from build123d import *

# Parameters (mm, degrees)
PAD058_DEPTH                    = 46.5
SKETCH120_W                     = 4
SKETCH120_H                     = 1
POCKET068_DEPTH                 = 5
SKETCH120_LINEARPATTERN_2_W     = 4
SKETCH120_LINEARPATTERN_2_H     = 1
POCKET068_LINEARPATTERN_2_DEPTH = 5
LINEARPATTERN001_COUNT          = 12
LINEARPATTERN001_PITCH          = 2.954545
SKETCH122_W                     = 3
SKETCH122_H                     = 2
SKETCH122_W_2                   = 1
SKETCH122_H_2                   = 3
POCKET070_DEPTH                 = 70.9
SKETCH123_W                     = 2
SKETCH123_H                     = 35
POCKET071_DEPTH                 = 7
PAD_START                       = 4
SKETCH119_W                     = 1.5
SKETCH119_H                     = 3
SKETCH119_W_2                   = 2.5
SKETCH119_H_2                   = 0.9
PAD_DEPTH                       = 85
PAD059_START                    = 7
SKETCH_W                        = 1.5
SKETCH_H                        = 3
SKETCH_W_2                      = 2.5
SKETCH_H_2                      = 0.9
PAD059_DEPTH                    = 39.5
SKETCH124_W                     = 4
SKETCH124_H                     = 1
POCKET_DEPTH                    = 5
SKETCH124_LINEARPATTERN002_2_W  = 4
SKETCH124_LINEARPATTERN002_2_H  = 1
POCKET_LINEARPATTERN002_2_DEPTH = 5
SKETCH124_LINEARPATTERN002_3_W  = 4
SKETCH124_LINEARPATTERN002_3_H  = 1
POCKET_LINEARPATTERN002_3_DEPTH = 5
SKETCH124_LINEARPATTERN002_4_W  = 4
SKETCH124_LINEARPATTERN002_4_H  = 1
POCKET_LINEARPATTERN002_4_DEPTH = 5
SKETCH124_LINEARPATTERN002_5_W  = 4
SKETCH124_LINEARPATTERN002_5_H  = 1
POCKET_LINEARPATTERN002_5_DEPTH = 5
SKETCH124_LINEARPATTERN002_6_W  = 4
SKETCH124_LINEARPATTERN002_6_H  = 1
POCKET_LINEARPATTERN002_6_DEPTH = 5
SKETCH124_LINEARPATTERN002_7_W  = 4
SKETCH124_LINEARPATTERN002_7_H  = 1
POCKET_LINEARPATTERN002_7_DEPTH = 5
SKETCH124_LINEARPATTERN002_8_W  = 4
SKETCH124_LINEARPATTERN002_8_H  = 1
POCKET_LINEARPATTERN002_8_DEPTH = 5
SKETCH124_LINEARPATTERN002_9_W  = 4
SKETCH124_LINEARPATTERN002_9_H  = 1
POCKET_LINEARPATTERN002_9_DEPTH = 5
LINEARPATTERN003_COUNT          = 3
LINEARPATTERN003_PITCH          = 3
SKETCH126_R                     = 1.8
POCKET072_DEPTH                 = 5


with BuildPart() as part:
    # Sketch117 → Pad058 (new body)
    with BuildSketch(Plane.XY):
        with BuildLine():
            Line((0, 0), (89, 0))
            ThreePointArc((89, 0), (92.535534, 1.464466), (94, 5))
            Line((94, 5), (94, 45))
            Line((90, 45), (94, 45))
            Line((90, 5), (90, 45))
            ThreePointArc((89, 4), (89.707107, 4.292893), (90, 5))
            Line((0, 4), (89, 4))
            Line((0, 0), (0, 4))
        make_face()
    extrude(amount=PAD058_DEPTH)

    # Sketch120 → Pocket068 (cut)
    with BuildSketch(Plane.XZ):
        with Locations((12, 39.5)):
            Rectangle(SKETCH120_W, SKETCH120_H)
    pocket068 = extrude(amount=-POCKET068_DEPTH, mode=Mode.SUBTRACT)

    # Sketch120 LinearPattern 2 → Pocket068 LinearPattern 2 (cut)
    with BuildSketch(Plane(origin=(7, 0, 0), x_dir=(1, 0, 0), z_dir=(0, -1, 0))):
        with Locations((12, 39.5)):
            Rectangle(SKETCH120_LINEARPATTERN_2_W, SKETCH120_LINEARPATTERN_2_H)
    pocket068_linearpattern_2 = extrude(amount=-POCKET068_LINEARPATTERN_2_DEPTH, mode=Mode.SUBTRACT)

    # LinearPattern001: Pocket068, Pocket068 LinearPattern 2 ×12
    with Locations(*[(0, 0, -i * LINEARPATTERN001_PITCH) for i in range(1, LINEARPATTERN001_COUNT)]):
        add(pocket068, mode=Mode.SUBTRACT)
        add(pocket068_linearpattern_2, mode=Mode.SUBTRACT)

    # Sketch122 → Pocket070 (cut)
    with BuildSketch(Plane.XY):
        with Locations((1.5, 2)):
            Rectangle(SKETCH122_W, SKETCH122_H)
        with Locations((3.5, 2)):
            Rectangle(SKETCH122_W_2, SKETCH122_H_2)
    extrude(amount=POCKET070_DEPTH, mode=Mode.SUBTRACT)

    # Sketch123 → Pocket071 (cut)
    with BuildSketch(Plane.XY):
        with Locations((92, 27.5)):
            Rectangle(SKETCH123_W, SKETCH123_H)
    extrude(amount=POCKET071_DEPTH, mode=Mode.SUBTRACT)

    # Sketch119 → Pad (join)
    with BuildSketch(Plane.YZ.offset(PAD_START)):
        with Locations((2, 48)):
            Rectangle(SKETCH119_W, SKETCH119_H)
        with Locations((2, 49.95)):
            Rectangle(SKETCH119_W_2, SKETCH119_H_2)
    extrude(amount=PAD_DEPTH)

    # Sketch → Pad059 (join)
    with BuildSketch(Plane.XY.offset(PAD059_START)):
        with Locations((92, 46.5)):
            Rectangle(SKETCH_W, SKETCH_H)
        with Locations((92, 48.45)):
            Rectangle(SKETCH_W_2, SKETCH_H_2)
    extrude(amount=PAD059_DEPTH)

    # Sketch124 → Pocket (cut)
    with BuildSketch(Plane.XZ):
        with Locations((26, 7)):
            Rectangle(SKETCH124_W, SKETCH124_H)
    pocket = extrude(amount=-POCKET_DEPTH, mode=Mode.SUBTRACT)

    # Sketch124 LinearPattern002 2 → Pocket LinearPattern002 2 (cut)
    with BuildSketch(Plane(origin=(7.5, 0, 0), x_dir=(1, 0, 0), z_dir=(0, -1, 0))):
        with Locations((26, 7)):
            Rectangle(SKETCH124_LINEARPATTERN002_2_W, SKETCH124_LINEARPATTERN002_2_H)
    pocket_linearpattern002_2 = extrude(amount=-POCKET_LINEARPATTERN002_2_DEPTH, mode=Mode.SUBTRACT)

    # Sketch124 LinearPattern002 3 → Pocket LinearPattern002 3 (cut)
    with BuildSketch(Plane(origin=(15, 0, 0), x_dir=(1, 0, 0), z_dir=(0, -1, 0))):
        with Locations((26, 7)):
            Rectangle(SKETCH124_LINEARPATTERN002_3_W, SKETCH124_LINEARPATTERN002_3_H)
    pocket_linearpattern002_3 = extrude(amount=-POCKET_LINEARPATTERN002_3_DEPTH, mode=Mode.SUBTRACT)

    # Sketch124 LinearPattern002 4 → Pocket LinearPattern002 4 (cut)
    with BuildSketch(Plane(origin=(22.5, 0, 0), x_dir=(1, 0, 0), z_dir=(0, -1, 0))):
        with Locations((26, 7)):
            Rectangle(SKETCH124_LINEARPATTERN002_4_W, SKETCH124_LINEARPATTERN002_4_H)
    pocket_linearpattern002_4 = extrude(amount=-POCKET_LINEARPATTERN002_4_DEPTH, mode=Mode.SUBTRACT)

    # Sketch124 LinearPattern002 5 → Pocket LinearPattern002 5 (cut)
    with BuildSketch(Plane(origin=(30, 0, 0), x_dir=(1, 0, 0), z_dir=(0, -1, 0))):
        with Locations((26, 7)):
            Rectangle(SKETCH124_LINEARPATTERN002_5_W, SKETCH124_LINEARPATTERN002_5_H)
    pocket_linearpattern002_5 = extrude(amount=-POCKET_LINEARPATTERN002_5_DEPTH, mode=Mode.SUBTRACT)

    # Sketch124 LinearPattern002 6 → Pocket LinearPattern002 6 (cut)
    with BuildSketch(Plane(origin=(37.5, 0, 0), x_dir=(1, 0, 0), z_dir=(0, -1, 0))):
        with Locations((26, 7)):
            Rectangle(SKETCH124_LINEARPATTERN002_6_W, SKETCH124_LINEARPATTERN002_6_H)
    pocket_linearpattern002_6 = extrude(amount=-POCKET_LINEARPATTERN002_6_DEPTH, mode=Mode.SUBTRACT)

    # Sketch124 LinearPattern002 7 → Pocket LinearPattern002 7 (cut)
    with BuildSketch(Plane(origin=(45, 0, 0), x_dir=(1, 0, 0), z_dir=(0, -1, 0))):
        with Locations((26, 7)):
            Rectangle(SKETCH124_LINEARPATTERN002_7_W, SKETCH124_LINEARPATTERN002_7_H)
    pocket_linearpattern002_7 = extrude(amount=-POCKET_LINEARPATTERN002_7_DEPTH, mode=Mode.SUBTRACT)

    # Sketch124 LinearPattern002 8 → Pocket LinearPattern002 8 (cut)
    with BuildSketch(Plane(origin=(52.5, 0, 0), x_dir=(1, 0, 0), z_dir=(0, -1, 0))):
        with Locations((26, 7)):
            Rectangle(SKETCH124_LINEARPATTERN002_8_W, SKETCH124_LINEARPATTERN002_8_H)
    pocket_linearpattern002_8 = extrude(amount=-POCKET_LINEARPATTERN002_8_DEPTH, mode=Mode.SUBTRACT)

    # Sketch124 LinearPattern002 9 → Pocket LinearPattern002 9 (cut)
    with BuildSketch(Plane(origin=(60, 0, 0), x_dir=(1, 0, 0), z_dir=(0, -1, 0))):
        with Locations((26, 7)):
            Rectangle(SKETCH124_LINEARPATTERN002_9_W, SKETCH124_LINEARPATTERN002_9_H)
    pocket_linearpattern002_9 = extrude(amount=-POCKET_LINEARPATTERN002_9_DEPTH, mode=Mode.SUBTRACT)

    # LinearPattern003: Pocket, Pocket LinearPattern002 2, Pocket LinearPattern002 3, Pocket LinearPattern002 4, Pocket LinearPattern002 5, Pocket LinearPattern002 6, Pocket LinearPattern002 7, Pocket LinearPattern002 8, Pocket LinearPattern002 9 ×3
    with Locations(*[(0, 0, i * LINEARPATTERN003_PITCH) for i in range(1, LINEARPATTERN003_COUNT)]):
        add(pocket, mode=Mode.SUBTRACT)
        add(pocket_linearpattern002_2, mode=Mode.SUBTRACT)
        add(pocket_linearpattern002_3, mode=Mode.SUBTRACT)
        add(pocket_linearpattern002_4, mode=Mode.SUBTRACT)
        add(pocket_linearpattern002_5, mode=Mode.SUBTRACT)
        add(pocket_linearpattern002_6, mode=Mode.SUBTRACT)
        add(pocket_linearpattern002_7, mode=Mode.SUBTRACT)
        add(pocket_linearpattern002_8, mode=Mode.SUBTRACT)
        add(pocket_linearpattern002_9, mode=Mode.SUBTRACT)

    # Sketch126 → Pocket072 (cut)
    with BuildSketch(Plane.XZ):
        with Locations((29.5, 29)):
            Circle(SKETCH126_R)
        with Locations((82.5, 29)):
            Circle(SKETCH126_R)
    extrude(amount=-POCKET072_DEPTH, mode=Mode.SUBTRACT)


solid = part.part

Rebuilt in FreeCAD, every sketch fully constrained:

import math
import FreeCAD as App
import Part
import Sketcher
from FreeCAD import Vector
Q = App.Units.Quantity


def add_polygon(sketch, points):
    """Adds a closed chain of lines whose ends are joined by coincident constraints."""
    first, n = sketch.GeometryCount, len(points)
    for a, b in zip(points, points[1:] + points[:1]):
        sketch.addGeometry(Part.LineSegment(App.Vector(*a, 0), App.Vector(*b, 0)), False)
    for i in range(n):
        sketch.addConstraint(Sketcher.Constraint("Coincident", first + i, 2, first + (i + 1) % n, 1))

doc = App.newDocument("Part")
body = doc.addObject("PartDesign::Body", "Body")

# Sketch on XY plane
sketch1 = doc.addObject("Sketcher::SketchObject", "Sketch")
body.addObject(sketch1)
sketch1.AttachmentSupport = (doc.XY_Plane, [""])
sketch1.MapMode = "FlatFace"
sketch1.addGeometry(Part.LineSegment(Vector(0, 0, 0), Vector(89, 0, 0)), False)
sketch1.addGeometry(Part.ArcOfCircle(Part.Circle(Vector(89, 5, 0), Vector(0, 0, 1), 5), math.radians(-90), math.radians(0)), False)
sketch1.addGeometry(Part.LineSegment(Vector(94, 5, 0), Vector(94, 45, 0)), False)
sketch1.addGeometry(Part.LineSegment(Vector(94, 45, 0), Vector(90, 45, 0)), False)
sketch1.addGeometry(Part.LineSegment(Vector(90, 45, 0), Vector(90, 5, 0)), False)
sketch1.addGeometry(Part.ArcOfCircle(Part.Circle(Vector(89, 5, 0), Vector(0, 0, 1), 1), math.radians(-90), math.radians(0)), False)
sketch1.addGeometry(Part.LineSegment(Vector(89, 4, 0), Vector(0, 4, 0)), False)
sketch1.addGeometry(Part.LineSegment(Vector(0, 4, 0), Vector(0, 0, 0)), False)
sketch1.addConstraint(Sketcher.Constraint("Tangent", 0, 2, 1, 1))
sketch1.addConstraint(Sketcher.Constraint("Tangent", 1, 2, 2, 1))
sketch1.addConstraint(Sketcher.Constraint("Coincident", 2, 2, 3, 1))
sketch1.addConstraint(Sketcher.Constraint("Coincident", 3, 2, 4, 1))
sketch1.addConstraint(Sketcher.Constraint("Tangent", 4, 2, 5, 2))
sketch1.addConstraint(Sketcher.Constraint("Tangent", 5, 1, 6, 1))
sketch1.addConstraint(Sketcher.Constraint("Coincident", 6, 2, 7, 1))
sketch1.addConstraint(Sketcher.Constraint("Coincident", 7, 2, 0, 1))
sketch1.addConstraint(Sketcher.Constraint("Horizontal", 0))
sketch1.addConstraint(Sketcher.Constraint("Vertical", 2))
sketch1.addConstraint(Sketcher.Constraint("Horizontal", 3))
sketch1.addConstraint(Sketcher.Constraint("Vertical", 4))
sketch1.addConstraint(Sketcher.Constraint("Horizontal", 6))
sketch1.addConstraint(Sketcher.Constraint("Vertical", 7))
sketch1.addConstraint(Sketcher.Constraint("Coincident", 7, 2, -1, 1))
sketch1.addConstraint(Sketcher.Constraint("Coincident", 5, 3, 1, 3))
sketch1.addConstraint(Sketcher.Constraint("Radius", 1, Q("5 mm")))
sketch1.addConstraint(Sketcher.Constraint("Radius", 5, Q("0.999999 mm")))
sketch1.addConstraint(Sketcher.Constraint("DistanceX", 0, 1, 0, 2, Q("89 mm")))
sketch1.addConstraint(Sketcher.Constraint("DistanceY", 2, 1, 2, 2, Q("40 mm")))
pad1 = doc.addObject("PartDesign::Pad", "Pad")
body.addObject(pad1)
pad1.Profile = sketch1
pad1.Length = 46.5

# Sketch on XZ plane
sketch2 = doc.addObject("Sketcher::SketchObject", "Sketch001")
body.addObject(sketch2)
sketch2.AttachmentSupport = (doc.XZ_Plane, [""])
sketch2.MapMode = "FlatFace"
add_polygon(sketch2, [(10, 40), (10, 39), (14, 39), (14, 40)])  # lines 0-3
sketch2.addConstraint(Sketcher.Constraint("Vertical", 0))
sketch2.addConstraint(Sketcher.Constraint("Horizontal", 1))
sketch2.addConstraint(Sketcher.Constraint("Vertical", 2))
sketch2.addConstraint(Sketcher.Constraint("Horizontal", 3))
sketch2.addConstraint(Sketcher.Constraint("DistanceX", 1, 1, 1, 2, Q("4 mm")))
sketch2.addConstraint(Sketcher.Constraint("DistanceY", 0, 2, 0, 1, Q("1 mm")))
sketch2.addConstraint(Sketcher.Constraint("DistanceX", -1, 1, 0, 2, Q("10 mm")))
sketch2.addConstraint(Sketcher.Constraint("DistanceY", -1, 1, 0, 2, Q("39 mm")))
pocket1 = doc.addObject("PartDesign::Pocket", "Pocket")
body.addObject(pocket1)
pocket1.Profile = sketch2
pocket1.Length = 5

# Sketch on XZ plane
sketch3 = doc.addObject("Sketcher::SketchObject", "Sketch002")
body.addObject(sketch3)
sketch3.AttachmentSupport = (doc.XZ_Plane, [""])
sketch3.MapMode = "FlatFace"
add_polygon(sketch3, [(17, 40), (17, 39), (21, 39), (21, 40)])  # lines 0-3
sketch3.addConstraint(Sketcher.Constraint("Vertical", 0))
sketch3.addConstraint(Sketcher.Constraint("Horizontal", 1))
sketch3.addConstraint(Sketcher.Constraint("Vertical", 2))
sketch3.addConstraint(Sketcher.Constraint("Horizontal", 3))
sketch3.addConstraint(Sketcher.Constraint("DistanceX", 1, 1, 1, 2, Q("4 mm")))
sketch3.addConstraint(Sketcher.Constraint("DistanceY", 0, 2, 0, 1, Q("1 mm")))
sketch3.addConstraint(Sketcher.Constraint("DistanceX", -1, 1, 0, 2, Q("17 mm")))
sketch3.addConstraint(Sketcher.Constraint("DistanceY", -1, 1, 0, 2, Q("39 mm")))
pocket2 = doc.addObject("PartDesign::Pocket", "Pocket001")
body.addObject(pocket2)
pocket2.Profile = sketch3
pocket2.Length = 5
doc.recompute()

linearpattern = doc.addObject("PartDesign::LinearPattern", "LinearPattern")
body.addObject(linearpattern)
linearpattern.Originals = [pocket1, pocket2]
linearpattern.Direction = (doc.Z_Axis, [""])
linearpattern.Mode = "offset"
linearpattern.Offset = 2.954545
linearpattern.Occurrences = 12
linearpattern.Reversed = True
body.Tip = linearpattern

# Sketch on XY plane
sketch4 = doc.addObject("Sketcher::SketchObject", "Sketch003")
body.addObject(sketch4)
sketch4.AttachmentSupport = (doc.XY_Plane, [""])
sketch4.MapMode = "FlatFace"
add_polygon(sketch4, [(0, 3), (0, 1), (3, 1), (3, 0.5), (4, 0.5), (4, 3.5), (3, 3.5), (3, 3)])  # lines 0-7
sketch4.addConstraint(Sketcher.Constraint("Vertical", 0))
sketch4.addConstraint(Sketcher.Constraint("Horizontal", 1))
sketch4.addConstraint(Sketcher.Constraint("Vertical", 2))
sketch4.addConstraint(Sketcher.Constraint("Horizontal", 3))
sketch4.addConstraint(Sketcher.Constraint("Vertical", 4))
sketch4.addConstraint(Sketcher.Constraint("Horizontal", 5))
sketch4.addConstraint(Sketcher.Constraint("Vertical", 6))
sketch4.addConstraint(Sketcher.Constraint("Horizontal", 7))
sketch4.addConstraint(Sketcher.Constraint("PointOnObject", 0, 2, -2))
sketch4.addConstraint(Sketcher.Constraint("Vertical", 2, 2, 5, 2))
sketch4.addConstraint(Sketcher.Constraint("Equal", 7, 4))
sketch4.addConstraint(Sketcher.Constraint("Equal", 2, 6))
sketch4.addConstraint(Sketcher.Constraint("DistanceX", 1, 1, 1, 2, Q("3 mm")))
sketch4.addConstraint(Sketcher.Constraint("DistanceX", 3, 1, 3, 2, Q("1 mm")))
sketch4.addConstraint(Sketcher.Constraint("DistanceY", 0, 2, 0, 1, Q("2 mm")))
sketch4.addConstraint(Sketcher.Constraint("DistanceY", -1, 1, 0, 2, Q("1 mm")))
pocket3 = doc.addObject("PartDesign::Pocket", "Pocket002")
body.addObject(pocket3)
pocket3.Profile = sketch4
pocket3.Length = 70.9
pocket3.Reversed = True

# Sketch on XY plane
sketch5 = doc.addObject("Sketcher::SketchObject", "Sketch004")
body.addObject(sketch5)
sketch5.AttachmentSupport = (doc.XY_Plane, [""])
sketch5.MapMode = "FlatFace"
add_polygon(sketch5, [(91, 45), (91, 10), (93, 10), (93, 45)])  # lines 0-3
sketch5.addConstraint(Sketcher.Constraint("Vertical", 0))
sketch5.addConstraint(Sketcher.Constraint("Horizontal", 1))
sketch5.addConstraint(Sketcher.Constraint("Vertical", 2))
sketch5.addConstraint(Sketcher.Constraint("Horizontal", 3))
sketch5.addConstraint(Sketcher.Constraint("DistanceX", 1, 1, 1, 2, Q("2 mm")))
sketch5.addConstraint(Sketcher.Constraint("DistanceY", 0, 2, 0, 1, Q("35 mm")))
sketch5.addConstraint(Sketcher.Constraint("DistanceX", -1, 1, 0, 2, Q("91 mm")))
sketch5.addConstraint(Sketcher.Constraint("DistanceY", -1, 1, 0, 2, Q("10 mm")))
pocket4 = doc.addObject("PartDesign::Pocket", "Pocket003")
body.addObject(pocket4)
pocket4.Profile = sketch5
pocket4.Length = 7
pocket4.Reversed = True

# Sketch on YZ plane
sketch6 = doc.addObject("Sketcher::SketchObject", "Sketch005")
body.addObject(sketch6)
sketch6.AttachmentSupport = (doc.YZ_Plane, [""])
sketch6.MapMode = "FlatFace"
sketch6.AttachmentOffset = App.Placement(Vector(0, 0, 4), App.Rotation())
add_polygon(sketch6, [(1.2, 49.5), (1.2, 46.5), (2.8, 46.5), (2.8, 49.5), (3.2, 49.5), (3.2, 50.4), (0.8, 50.4), (0.8, 49.5)])  # lines 0-7
sketch6.addConstraint(Sketcher.Constraint("Vertical", 0))
sketch6.addConstraint(Sketcher.Constraint("Horizontal", 1))
sketch6.addConstraint(Sketcher.Constraint("Vertical", 2))
sketch6.addConstraint(Sketcher.Constraint("Horizontal", 3))
sketch6.addConstraint(Sketcher.Constraint("Vertical", 4))
sketch6.addConstraint(Sketcher.Constraint("Horizontal", 5))
sketch6.addConstraint(Sketcher.Constraint("Vertical", 6))
sketch6.addConstraint(Sketcher.Constraint("Horizontal", 7))
sketch6.addConstraint(Sketcher.Constraint("Horizontal", 3, 2, 6, 2))
sketch6.addConstraint(Sketcher.Constraint("Equal", 3, 7))
sketch6.addConstraint(Sketcher.Constraint("DistanceY", 0, 2, 0, 1, Q("3 mm")))
sketch6.addConstraint(Sketcher.Constraint("DistanceX", 1, 1, 1, 2, Q("1.5 mm")))
sketch6.addConstraint(Sketcher.Constraint("DistanceX", 3, 1, 3, 2, Q("0.5 mm")))
sketch6.addConstraint(Sketcher.Constraint("DistanceY", 4, 1, 4, 2, Q("0.9 mm")))
sketch6.addConstraint(Sketcher.Constraint("DistanceY", -1, 1, 0, 2, Q("46.5 mm")))
sketch6.addConstraint(Sketcher.Constraint("DistanceX", -1, 1, 0, 2, Q("1.25 mm")))
pad2 = doc.addObject("PartDesign::Pad", "Pad001")
body.addObject(pad2)
pad2.Profile = sketch6
pad2.Length = 85

# Sketch on XY plane
sketch7 = doc.addObject("Sketcher::SketchObject", "Sketch006")
body.addObject(sketch7)
sketch7.AttachmentSupport = (doc.XY_Plane, [""])
sketch7.MapMode = "FlatFace"
sketch7.AttachmentOffset = App.Placement(Vector(0, 0, 7), App.Rotation())
add_polygon(sketch7, [(91.2, 48), (91.2, 45), (92.8, 45), (92.8, 48), (93.2, 48), (93.2, 48.9), (90.8, 48.9), (90.8, 48)])  # lines 0-7
sketch7.addConstraint(Sketcher.Constraint("Vertical", 0))
sketch7.addConstraint(Sketcher.Constraint("Horizontal", 1))
sketch7.addConstraint(Sketcher.Constraint("Vertical", 2))
sketch7.addConstraint(Sketcher.Constraint("Horizontal", 3))
sketch7.addConstraint(Sketcher.Constraint("Vertical", 4))
sketch7.addConstraint(Sketcher.Constraint("Horizontal", 5))
sketch7.addConstraint(Sketcher.Constraint("Vertical", 6))
sketch7.addConstraint(Sketcher.Constraint("Horizontal", 7))
sketch7.addConstraint(Sketcher.Constraint("Horizontal", 3, 2, 6, 2))
sketch7.addConstraint(Sketcher.Constraint("Equal", 3, 7))
sketch7.addConstraint(Sketcher.Constraint("DistanceY", 0, 2, 0, 1, Q("3 mm")))
sketch7.addConstraint(Sketcher.Constraint("DistanceX", 1, 1, 1, 2, Q("1.5 mm")))
sketch7.addConstraint(Sketcher.Constraint("DistanceX", 3, 1, 3, 2, Q("0.5 mm")))
sketch7.addConstraint(Sketcher.Constraint("DistanceY", 4, 1, 4, 2, Q("0.9 mm")))
sketch7.addConstraint(Sketcher.Constraint("DistanceY", -1, 1, 0, 2, Q("45 mm")))
sketch7.addConstraint(Sketcher.Constraint("DistanceX", -1, 1, 0, 2, Q("91.25 mm")))
pad3 = doc.addObject("PartDesign::Pad", "Pad002")
body.addObject(pad3)
pad3.Profile = sketch7
pad3.Length = 39.5

# Sketch on XZ plane
sketch8 = doc.addObject("Sketcher::SketchObject", "Sketch007")
body.addObject(sketch8)
sketch8.AttachmentSupport = (doc.XZ_Plane, [""])
sketch8.MapMode = "FlatFace"
add_polygon(sketch8, [(24, 7.5), (24, 6.5), (28, 6.5), (28, 7.5)])  # lines 0-3
sketch8.addConstraint(Sketcher.Constraint("Vertical", 0))
sketch8.addConstraint(Sketcher.Constraint("Horizontal", 1))
sketch8.addConstraint(Sketcher.Constraint("Vertical", 2))
sketch8.addConstraint(Sketcher.Constraint("Horizontal", 3))
sketch8.addConstraint(Sketcher.Constraint("DistanceX", 1, 1, 1, 2, Q("4 mm")))
sketch8.addConstraint(Sketcher.Constraint("DistanceY", 0, 2, 0, 1, Q("1 mm")))
sketch8.addConstraint(Sketcher.Constraint("DistanceX", -1, 1, 0, 2, Q("24 mm")))
sketch8.addConstraint(Sketcher.Constraint("DistanceY", -1, 1, 0, 2, Q("6.5 mm")))
pocket5 = doc.addObject("PartDesign::Pocket", "Pocket004")
body.addObject(pocket5)
pocket5.Profile = sketch8
pocket5.Length = 5

# Sketch on XZ plane
sketch9 = doc.addObject("Sketcher::SketchObject", "Sketch008")
body.addObject(sketch9)
sketch9.AttachmentSupport = (doc.XZ_Plane, [""])
sketch9.MapMode = "FlatFace"
add_polygon(sketch9, [(31.5, 7.5), (31.5, 6.5), (35.5, 6.5), (35.5, 7.5)])  # lines 0-3
sketch9.addConstraint(Sketcher.Constraint("Vertical", 0))
sketch9.addConstraint(Sketcher.Constraint("Horizontal", 1))
sketch9.addConstraint(Sketcher.Constraint("Vertical", 2))
sketch9.addConstraint(Sketcher.Constraint("Horizontal", 3))
sketch9.addConstraint(Sketcher.Constraint("DistanceX", 1, 1, 1, 2, Q("4 mm")))
sketch9.addConstraint(Sketcher.Constraint("DistanceY", 0, 2, 0, 1, Q("1 mm")))
sketch9.addConstraint(Sketcher.Constraint("DistanceX", -1, 1, 0, 2, Q("31.5 mm")))
sketch9.addConstraint(Sketcher.Constraint("DistanceY", -1, 1, 0, 2, Q("6.5 mm")))
pocket6 = doc.addObject("PartDesign::Pocket", "Pocket005")
body.addObject(pocket6)
pocket6.Profile = sketch9
pocket6.Length = 5

# Sketch on XZ plane
sketch10 = doc.addObject("Sketcher::SketchObject", "Sketch009")
body.addObject(sketch10)
sketch10.AttachmentSupport = (doc.XZ_Plane, [""])
sketch10.MapMode = "FlatFace"
add_polygon(sketch10, [(39, 7.5), (39, 6.5), (43, 6.5), (43, 7.5)])  # lines 0-3
sketch10.addConstraint(Sketcher.Constraint("Vertical", 0))
sketch10.addConstraint(Sketcher.Constraint("Horizontal", 1))
sketch10.addConstraint(Sketcher.Constraint("Vertical", 2))
sketch10.addConstraint(Sketcher.Constraint("Horizontal", 3))
sketch10.addConstraint(Sketcher.Constraint("DistanceX", 1, 1, 1, 2, Q("4 mm")))
sketch10.addConstraint(Sketcher.Constraint("DistanceY", 0, 2, 0, 1, Q("1 mm")))
sketch10.addConstraint(Sketcher.Constraint("DistanceX", -1, 1, 0, 2, Q("39 mm")))
sketch10.addConstraint(Sketcher.Constraint("DistanceY", -1, 1, 0, 2, Q("6.5 mm")))
pocket7 = doc.addObject("PartDesign::Pocket", "Pocket006")
body.addObject(pocket7)
pocket7.Profile = sketch10
pocket7.Length = 5

# Sketch on XZ plane
sketch11 = doc.addObject("Sketcher::SketchObject", "Sketch010")
body.addObject(sketch11)
sketch11.AttachmentSupport = (doc.XZ_Plane, [""])
sketch11.MapMode = "FlatFace"
add_polygon(sketch11, [(46.5, 7.5), (46.5, 6.5), (50.5, 6.5), (50.5, 7.5)])  # lines 0-3
sketch11.addConstraint(Sketcher.Constraint("Vertical", 0))
sketch11.addConstraint(Sketcher.Constraint("Horizontal", 1))
sketch11.addConstraint(Sketcher.Constraint("Vertical", 2))
sketch11.addConstraint(Sketcher.Constraint("Horizontal", 3))
sketch11.addConstraint(Sketcher.Constraint("DistanceX", 1, 1, 1, 2, Q("4 mm")))
sketch11.addConstraint(Sketcher.Constraint("DistanceY", 0, 2, 0, 1, Q("1 mm")))
sketch11.addConstraint(Sketcher.Constraint("DistanceX", -1, 1, 0, 2, Q("46.5 mm")))
sketch11.addConstraint(Sketcher.Constraint("DistanceY", -1, 1, 0, 2, Q("6.5 mm")))
pocket8 = doc.addObject("PartDesign::Pocket", "Pocket007")
body.addObject(pocket8)
pocket8.Profile = sketch11
pocket8.Length = 5

# Sketch on XZ plane
sketch12 = doc.addObject("Sketcher::SketchObject", "Sketch011")
body.addObject(sketch12)
sketch12.AttachmentSupport = (doc.XZ_Plane, [""])
sketch12.MapMode = "FlatFace"
add_polygon(sketch12, [(54, 7.5), (54, 6.5), (58, 6.5), (58, 7.5)])  # lines 0-3
sketch12.addConstraint(Sketcher.Constraint("Vertical", 0))
sketch12.addConstraint(Sketcher.Constraint("Horizontal", 1))
sketch12.addConstraint(Sketcher.Constraint("Vertical", 2))
sketch12.addConstraint(Sketcher.Constraint("Horizontal", 3))
sketch12.addConstraint(Sketcher.Constraint("DistanceX", 1, 1, 1, 2, Q("4 mm")))
sketch12.addConstraint(Sketcher.Constraint("DistanceY", 0, 2, 0, 1, Q("1 mm")))
sketch12.addConstraint(Sketcher.Constraint("DistanceX", -1, 1, 0, 2, Q("54 mm")))
sketch12.addConstraint(Sketcher.Constraint("DistanceY", -1, 1, 0, 2, Q("6.5 mm")))
pocket9 = doc.addObject("PartDesign::Pocket", "Pocket008")
body.addObject(pocket9)
pocket9.Profile = sketch12
pocket9.Length = 5

# Sketch on XZ plane
sketch13 = doc.addObject("Sketcher::SketchObject", "Sketch012")
body.addObject(sketch13)
sketch13.AttachmentSupport = (doc.XZ_Plane, [""])
sketch13.MapMode = "FlatFace"
add_polygon(sketch13, [(61.5, 7.5), (61.5, 6.5), (65.5, 6.5), (65.5, 7.5)])  # lines 0-3
sketch13.addConstraint(Sketcher.Constraint("Vertical", 0))
sketch13.addConstraint(Sketcher.Constraint("Horizontal", 1))
sketch13.addConstraint(Sketcher.Constraint("Vertical", 2))
sketch13.addConstraint(Sketcher.Constraint("Horizontal", 3))
sketch13.addConstraint(Sketcher.Constraint("DistanceX", 1, 1, 1, 2, Q("4 mm")))
sketch13.addConstraint(Sketcher.Constraint("DistanceY", 0, 2, 0, 1, Q("1 mm")))
sketch13.addConstraint(Sketcher.Constraint("DistanceX", -1, 1, 0, 2, Q("61.5 mm")))
sketch13.addConstraint(Sketcher.Constraint("DistanceY", -1, 1, 0, 2, Q("6.5 mm")))
pocket10 = doc.addObject("PartDesign::Pocket", "Pocket009")
body.addObject(pocket10)
pocket10.Profile = sketch13
pocket10.Length = 5

# Sketch on XZ plane
sketch14 = doc.addObject("Sketcher::SketchObject", "Sketch013")
body.addObject(sketch14)
sketch14.AttachmentSupport = (doc.XZ_Plane, [""])
sketch14.MapMode = "FlatFace"
add_polygon(sketch14, [(69, 7.5), (69, 6.5), (73, 6.5), (73, 7.5)])  # lines 0-3
sketch14.addConstraint(Sketcher.Constraint("Vertical", 0))
sketch14.addConstraint(Sketcher.Constraint("Horizontal", 1))
sketch14.addConstraint(Sketcher.Constraint("Vertical", 2))
sketch14.addConstraint(Sketcher.Constraint("Horizontal", 3))
sketch14.addConstraint(Sketcher.Constraint("DistanceX", 1, 1, 1, 2, Q("4 mm")))
sketch14.addConstraint(Sketcher.Constraint("DistanceY", 0, 2, 0, 1, Q("1 mm")))
sketch14.addConstraint(Sketcher.Constraint("DistanceX", -1, 1, 0, 2, Q("69 mm")))
sketch14.addConstraint(Sketcher.Constraint("DistanceY", -1, 1, 0, 2, Q("6.5 mm")))
pocket11 = doc.addObject("PartDesign::Pocket", "Pocket010")
body.addObject(pocket11)
pocket11.Profile = sketch14
pocket11.Length = 5

# Sketch on XZ plane
sketch15 = doc.addObject("Sketcher::SketchObject", "Sketch014")
body.addObject(sketch15)
sketch15.AttachmentSupport = (doc.XZ_Plane, [""])
sketch15.MapMode = "FlatFace"
add_polygon(sketch15, [(76.5, 7.5), (76.5, 6.5), (80.5, 6.5), (80.5, 7.5)])  # lines 0-3
sketch15.addConstraint(Sketcher.Constraint("Vertical", 0))
sketch15.addConstraint(Sketcher.Constraint("Horizontal", 1))
sketch15.addConstraint(Sketcher.Constraint("Vertical", 2))
sketch15.addConstraint(Sketcher.Constraint("Horizontal", 3))
sketch15.addConstraint(Sketcher.Constraint("DistanceX", 1, 1, 1, 2, Q("4 mm")))
sketch15.addConstraint(Sketcher.Constraint("DistanceY", 0, 2, 0, 1, Q("1 mm")))
sketch15.addConstraint(Sketcher.Constraint("DistanceX", -1, 1, 0, 2, Q("76.5 mm")))
sketch15.addConstraint(Sketcher.Constraint("DistanceY", -1, 1, 0, 2, Q("6.5 mm")))
pocket12 = doc.addObject("PartDesign::Pocket", "Pocket011")
body.addObject(pocket12)
pocket12.Profile = sketch15
pocket12.Length = 5

# Sketch on XZ plane
sketch16 = doc.addObject("Sketcher::SketchObject", "Sketch015")
body.addObject(sketch16)
sketch16.AttachmentSupport = (doc.XZ_Plane, [""])
sketch16.MapMode = "FlatFace"
add_polygon(sketch16, [(84, 7.5), (84, 6.5), (88, 6.5), (88, 7.5)])  # lines 0-3
sketch16.addConstraint(Sketcher.Constraint("Vertical", 0))
sketch16.addConstraint(Sketcher.Constraint("Horizontal", 1))
sketch16.addConstraint(Sketcher.Constraint("Vertical", 2))
sketch16.addConstraint(Sketcher.Constraint("Horizontal", 3))
sketch16.addConstraint(Sketcher.Constraint("DistanceX", 1, 1, 1, 2, Q("4 mm")))
sketch16.addConstraint(Sketcher.Constraint("DistanceY", 0, 2, 0, 1, Q("1 mm")))
sketch16.addConstraint(Sketcher.Constraint("DistanceX", -1, 1, 0, 2, Q("84 mm")))
sketch16.addConstraint(Sketcher.Constraint("DistanceY", -1, 1, 0, 2, Q("6.5 mm")))
pocket13 = doc.addObject("PartDesign::Pocket", "Pocket012")
body.addObject(pocket13)
pocket13.Profile = sketch16
pocket13.Length = 5
doc.recompute()

linearpattern2 = doc.addObject("PartDesign::LinearPattern", "LinearPattern001")
body.addObject(linearpattern2)
linearpattern2.Originals = [pocket5, pocket6, pocket7, pocket8, pocket9, pocket10, pocket11, pocket12, pocket13]
linearpattern2.Direction = (doc.Z_Axis, [""])
linearpattern2.Mode = "offset"
linearpattern2.Offset = 3
linearpattern2.Occurrences = 3
body.Tip = linearpattern2

# Sketch on XZ plane
sketch17 = doc.addObject("Sketcher::SketchObject", "Sketch016")
body.addObject(sketch17)
sketch17.AttachmentSupport = (doc.XZ_Plane, [""])
sketch17.MapMode = "FlatFace"
sketch17.addGeometry(Part.Circle(Vector(29.5, 29, 0), Vector(0, 0, 1), 1.8), False)
sketch17.addGeometry(Part.Circle(Vector(82.5, 29, 0), Vector(0, 0, 1), 1.8), False)
sketch17.addConstraint(Sketcher.Constraint("Equal", 0, 1))
sketch17.addConstraint(Sketcher.Constraint("Horizontal", 0, 3, 1, 3))
sketch17.addConstraint(Sketcher.Constraint("Diameter", 0, Q("3.6 mm")))
sketch17.addConstraint(Sketcher.Constraint("DistanceY", -1, 1, 0, 3, Q("29 mm")))
sketch17.addConstraint(Sketcher.Constraint("DistanceX", 0, 3, 1, 3, Q("53 mm")))
sketch17.addConstraint(Sketcher.Constraint("DistanceX", -1, 1, 0, 3, Q("29.5 mm")))
pocket14 = doc.addObject("PartDesign::Pocket", "Pocket013")
body.addObject(pocket14)
pocket14.Profile = sketch17
pocket14.Length = 5

doc.recompute()
